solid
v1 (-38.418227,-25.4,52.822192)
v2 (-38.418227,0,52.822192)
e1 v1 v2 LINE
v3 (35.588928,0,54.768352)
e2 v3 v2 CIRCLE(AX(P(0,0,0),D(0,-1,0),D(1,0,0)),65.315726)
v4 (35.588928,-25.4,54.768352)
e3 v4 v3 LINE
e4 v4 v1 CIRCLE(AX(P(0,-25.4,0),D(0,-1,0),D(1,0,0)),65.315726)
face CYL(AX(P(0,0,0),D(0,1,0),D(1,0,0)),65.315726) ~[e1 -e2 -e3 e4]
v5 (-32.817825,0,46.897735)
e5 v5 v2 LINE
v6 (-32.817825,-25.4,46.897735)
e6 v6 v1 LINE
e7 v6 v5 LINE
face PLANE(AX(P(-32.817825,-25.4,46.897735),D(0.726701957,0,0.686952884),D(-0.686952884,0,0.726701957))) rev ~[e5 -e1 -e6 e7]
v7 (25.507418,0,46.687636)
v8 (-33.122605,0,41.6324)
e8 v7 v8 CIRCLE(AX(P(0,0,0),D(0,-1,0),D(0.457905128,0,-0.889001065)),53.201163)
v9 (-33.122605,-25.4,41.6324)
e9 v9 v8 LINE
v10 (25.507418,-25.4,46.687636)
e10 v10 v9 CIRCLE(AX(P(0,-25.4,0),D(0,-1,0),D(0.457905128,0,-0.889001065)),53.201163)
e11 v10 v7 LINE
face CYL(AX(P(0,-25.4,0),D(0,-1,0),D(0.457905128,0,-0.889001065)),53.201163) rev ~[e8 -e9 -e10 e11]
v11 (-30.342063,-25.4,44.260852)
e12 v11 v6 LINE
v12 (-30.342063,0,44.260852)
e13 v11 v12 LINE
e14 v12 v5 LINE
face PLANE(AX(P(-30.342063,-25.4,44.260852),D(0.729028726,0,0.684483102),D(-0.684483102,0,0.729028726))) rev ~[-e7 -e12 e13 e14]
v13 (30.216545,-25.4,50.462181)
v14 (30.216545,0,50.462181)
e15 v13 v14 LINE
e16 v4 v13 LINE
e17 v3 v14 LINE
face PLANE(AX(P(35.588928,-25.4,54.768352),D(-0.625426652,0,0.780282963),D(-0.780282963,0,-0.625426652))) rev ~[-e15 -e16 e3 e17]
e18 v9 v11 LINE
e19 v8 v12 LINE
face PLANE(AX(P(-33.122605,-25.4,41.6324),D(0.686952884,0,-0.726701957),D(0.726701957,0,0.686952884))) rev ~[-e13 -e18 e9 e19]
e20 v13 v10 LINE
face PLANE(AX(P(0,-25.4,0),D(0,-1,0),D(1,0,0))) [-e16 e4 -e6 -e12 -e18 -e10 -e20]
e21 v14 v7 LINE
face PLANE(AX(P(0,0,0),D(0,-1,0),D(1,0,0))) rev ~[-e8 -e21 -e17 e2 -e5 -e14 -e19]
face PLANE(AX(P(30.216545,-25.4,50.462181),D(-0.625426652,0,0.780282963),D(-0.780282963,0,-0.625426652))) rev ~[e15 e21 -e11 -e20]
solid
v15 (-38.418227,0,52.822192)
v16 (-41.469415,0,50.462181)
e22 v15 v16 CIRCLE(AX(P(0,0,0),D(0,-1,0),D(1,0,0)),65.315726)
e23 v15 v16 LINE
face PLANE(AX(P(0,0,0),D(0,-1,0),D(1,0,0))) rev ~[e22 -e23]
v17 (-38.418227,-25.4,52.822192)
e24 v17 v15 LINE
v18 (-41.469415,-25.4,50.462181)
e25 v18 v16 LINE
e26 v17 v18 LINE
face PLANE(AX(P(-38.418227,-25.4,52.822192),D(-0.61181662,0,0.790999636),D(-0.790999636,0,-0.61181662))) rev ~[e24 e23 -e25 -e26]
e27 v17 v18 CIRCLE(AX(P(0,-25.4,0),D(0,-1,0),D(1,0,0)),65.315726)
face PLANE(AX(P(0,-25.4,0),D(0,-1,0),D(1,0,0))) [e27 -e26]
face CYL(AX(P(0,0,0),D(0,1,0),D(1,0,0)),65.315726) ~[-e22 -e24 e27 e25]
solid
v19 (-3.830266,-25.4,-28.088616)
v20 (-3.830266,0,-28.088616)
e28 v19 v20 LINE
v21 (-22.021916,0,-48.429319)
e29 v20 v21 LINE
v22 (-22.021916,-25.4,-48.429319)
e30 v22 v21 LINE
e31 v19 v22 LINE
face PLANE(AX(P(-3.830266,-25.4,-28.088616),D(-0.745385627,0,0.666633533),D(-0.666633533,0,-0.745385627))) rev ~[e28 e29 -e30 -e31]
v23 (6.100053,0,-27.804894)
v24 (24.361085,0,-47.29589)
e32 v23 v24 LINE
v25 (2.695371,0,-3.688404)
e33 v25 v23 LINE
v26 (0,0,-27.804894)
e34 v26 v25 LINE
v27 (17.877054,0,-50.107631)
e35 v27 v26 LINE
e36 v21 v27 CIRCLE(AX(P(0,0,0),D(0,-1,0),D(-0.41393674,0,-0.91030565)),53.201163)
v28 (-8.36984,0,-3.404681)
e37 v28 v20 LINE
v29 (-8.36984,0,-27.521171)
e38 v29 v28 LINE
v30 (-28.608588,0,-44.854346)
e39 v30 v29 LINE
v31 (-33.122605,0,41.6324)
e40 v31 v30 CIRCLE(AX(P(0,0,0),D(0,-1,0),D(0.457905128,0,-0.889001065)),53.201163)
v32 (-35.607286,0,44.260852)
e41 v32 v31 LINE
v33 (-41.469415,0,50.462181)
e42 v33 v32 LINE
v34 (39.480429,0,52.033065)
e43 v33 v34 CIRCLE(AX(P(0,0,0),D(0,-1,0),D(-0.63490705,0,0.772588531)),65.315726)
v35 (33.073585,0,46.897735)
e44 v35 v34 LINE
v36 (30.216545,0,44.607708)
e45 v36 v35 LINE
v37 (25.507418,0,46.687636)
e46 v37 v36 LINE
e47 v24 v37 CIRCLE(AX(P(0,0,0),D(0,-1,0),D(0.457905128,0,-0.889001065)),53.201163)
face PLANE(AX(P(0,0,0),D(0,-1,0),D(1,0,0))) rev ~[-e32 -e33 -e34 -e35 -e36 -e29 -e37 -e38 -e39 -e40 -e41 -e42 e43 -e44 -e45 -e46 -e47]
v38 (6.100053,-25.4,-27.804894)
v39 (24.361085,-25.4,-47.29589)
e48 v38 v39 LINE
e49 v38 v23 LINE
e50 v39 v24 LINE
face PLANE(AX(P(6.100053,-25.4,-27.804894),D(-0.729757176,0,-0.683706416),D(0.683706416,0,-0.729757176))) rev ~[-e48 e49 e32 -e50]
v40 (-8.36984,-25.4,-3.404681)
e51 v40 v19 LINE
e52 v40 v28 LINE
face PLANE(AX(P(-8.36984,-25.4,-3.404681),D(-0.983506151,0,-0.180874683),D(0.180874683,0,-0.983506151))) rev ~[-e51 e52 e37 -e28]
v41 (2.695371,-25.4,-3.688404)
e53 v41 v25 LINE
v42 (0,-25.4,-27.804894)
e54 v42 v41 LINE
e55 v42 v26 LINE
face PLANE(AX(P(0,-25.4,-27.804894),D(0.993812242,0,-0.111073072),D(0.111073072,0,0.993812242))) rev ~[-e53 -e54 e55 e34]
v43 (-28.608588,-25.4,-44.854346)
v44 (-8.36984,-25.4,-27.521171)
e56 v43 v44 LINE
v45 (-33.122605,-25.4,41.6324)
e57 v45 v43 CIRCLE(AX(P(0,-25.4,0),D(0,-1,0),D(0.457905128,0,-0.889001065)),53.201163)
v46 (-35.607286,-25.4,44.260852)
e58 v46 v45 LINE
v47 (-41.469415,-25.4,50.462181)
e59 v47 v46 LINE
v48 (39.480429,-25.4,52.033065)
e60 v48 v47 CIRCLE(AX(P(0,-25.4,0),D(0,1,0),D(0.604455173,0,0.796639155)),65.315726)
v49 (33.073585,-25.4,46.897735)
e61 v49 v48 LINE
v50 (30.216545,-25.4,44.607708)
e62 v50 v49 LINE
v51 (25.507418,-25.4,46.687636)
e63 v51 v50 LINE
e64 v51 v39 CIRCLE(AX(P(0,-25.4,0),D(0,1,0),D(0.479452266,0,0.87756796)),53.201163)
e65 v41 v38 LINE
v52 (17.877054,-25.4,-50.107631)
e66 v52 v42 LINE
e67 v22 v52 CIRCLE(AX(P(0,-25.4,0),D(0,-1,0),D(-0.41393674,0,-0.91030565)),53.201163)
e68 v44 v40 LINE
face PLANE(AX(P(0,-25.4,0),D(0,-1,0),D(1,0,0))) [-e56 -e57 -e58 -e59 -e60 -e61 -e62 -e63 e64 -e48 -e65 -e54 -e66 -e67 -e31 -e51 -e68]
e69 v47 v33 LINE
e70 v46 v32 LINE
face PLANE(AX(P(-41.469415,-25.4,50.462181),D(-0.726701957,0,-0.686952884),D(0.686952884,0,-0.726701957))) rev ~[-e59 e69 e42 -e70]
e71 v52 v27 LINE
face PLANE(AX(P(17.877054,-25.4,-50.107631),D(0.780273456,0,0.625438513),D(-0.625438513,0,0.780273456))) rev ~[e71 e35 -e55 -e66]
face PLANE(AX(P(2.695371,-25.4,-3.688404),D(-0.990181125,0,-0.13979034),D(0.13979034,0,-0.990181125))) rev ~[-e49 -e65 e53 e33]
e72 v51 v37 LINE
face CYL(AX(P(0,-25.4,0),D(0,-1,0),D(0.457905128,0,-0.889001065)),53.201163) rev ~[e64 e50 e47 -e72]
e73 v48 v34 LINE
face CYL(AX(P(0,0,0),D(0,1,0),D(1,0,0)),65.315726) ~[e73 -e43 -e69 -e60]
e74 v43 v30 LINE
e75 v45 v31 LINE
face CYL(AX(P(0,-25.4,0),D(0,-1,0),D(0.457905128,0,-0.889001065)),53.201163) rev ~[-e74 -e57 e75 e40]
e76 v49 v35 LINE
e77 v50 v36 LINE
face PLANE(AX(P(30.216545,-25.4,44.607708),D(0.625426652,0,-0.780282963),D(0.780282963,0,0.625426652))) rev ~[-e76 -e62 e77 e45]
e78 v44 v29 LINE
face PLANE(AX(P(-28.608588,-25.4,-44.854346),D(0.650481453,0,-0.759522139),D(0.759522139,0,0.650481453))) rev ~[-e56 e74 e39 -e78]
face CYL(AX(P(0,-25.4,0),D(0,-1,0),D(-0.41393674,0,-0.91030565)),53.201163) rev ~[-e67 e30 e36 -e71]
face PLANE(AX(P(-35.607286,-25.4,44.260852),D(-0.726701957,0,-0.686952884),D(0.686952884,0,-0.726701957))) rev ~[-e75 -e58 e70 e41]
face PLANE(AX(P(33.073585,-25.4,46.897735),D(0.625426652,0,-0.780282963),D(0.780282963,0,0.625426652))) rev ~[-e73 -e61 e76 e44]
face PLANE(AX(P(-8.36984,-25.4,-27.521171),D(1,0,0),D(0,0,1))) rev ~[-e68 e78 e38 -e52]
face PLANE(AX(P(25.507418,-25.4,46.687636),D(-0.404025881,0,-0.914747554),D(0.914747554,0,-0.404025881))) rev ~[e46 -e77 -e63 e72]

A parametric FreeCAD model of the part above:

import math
import FreeCAD as App
import Part
import Sketcher
Q = App.Units.Quantity

doc = App.newDocument("Part")
body = doc.addObject("PartDesign::Body", "Body")
body.AllowCompound = True

sketch1 = body.newObject("Sketcher::SketchObject", "Sketch")
sketch1.AttachmentSupport = (doc.getObject("XZ_Plane"), [""])
sketch1.MapMode = "FlatFace"
sketch1.addGeometry(Part.Circle(App.Vector(0, 0, 0), App.Vector(0, 0, 1), 65), False)
sketch1.addConstraint(Sketcher.Constraint("Coincident", 0, 3, -1, 1))
sketch1.addConstraint(Sketcher.Constraint("Diameter", 0, 130.631453))
pad1 = body.newObject("PartDesign::Pad", "Pad")
pad1.Profile = sketch1
pad1.Length = Q("1 in")

sketch2 = body.newObject("Sketcher::SketchObject", "Sketch001")
sketch2.AttachmentSupport = (doc.getObject("XZ_Plane"), [""])
sketch2.MapMode = "FlatFace"
sketch2.AttachmentOffset = App.Placement(App.Vector(0, 0, 1 * 25.4), App.Rotation())
sketch2.addGeometry(Part.LineSegment(App.Vector(-38.4, 52.8, 0), App.Vector(-41.5, 50.5, 0)), False)
sketch2.addGeometry(Part.LineSegment(App.Vector(-41.5, 50.5, 0), App.Vector(-35.6, 44.3, 0)), False)
sketch2.addGeometry(Part.LineSegment(App.Vector(-35.6, 44.3, 0), App.Vector(-32.8, 46.9, 0)), False)
sketch2.addGeometry(Part.LineSegment(App.Vector(-32.8, 46.9, 0), App.Vector(-38.4, 52.8, 0)), False)
sketch2.addGeometry(Part.ArcOfCircle(Part.Circle(App.Vector(0, 0, 0), App.Vector(0, 0, 1), 65.3), math.radians(52.81), math.radians(56.98)), False)
sketch2.addGeometry(Part.LineSegment(App.Vector(35.6, 54.8, 0), App.Vector(30.2, 50.5, 0)), False)
sketch2.addGeometry(Part.LineSegment(App.Vector(30.2, 50.5, 0), App.Vector(33.1, 46.9, 0)), False)
sketch2.addGeometry(Part.LineSegment(App.Vector(33.1, 46.9, 0), App.Vector(39.5, 52, 0)), False)
sketch2.addConstraint(Sketcher.Constraint("Coincident", 0, 2, 1, 1))
sketch2.addConstraint(Sketcher.Constraint("Coincident", 1, 2, 2, 1))
sketch2.addConstraint(Sketcher.Constraint("Coincident", 2, 2, 3, 1))
sketch2.addConstraint(Sketcher.Constraint("Coincident", 3, 2, 0, 1))
sketch2.addConstraint(Sketcher.Constraint("Coincident", 4, 2, 5, 1))
sketch2.addConstraint(Sketcher.Constraint("Coincident", 5, 2, 6, 1))
sketch2.addConstraint(Sketcher.Constraint("Coincident", 6, 2, 7, 1))
sketch2.addConstraint(Sketcher.Constraint("Coincident", 7, 2, 4, 1))
sketch2.addConstraint(Sketcher.Constraint("Coincident", 4, 3, -1, 1))
sketch2.addConstraint(Sketcher.Constraint("Perpendicular", 1, 2))
sketch2.addConstraint(Sketcher.Constraint("Perpendicular", 2, 3))
sketch2.addConstraint(Sketcher.Constraint("Perpendicular", 5, 6))
sketch2.addConstraint(Sketcher.Constraint("Perpendicular", 6, 7))
sketch2.addConstraint(Sketcher.Constraint("Horizontal", 0, 2, 5, 2))
sketch2.addConstraint(Sketcher.Constraint("Horizontal", 2, 2, 6, 2))
sketch2.addConstraint(Sketcher.Constraint("DistanceY", -1, 1, 0, 2, Q("1.9867 in")))
sketch2.addConstraint(Sketcher.Constraint("Radius", 4, 65.315726))
sketch2.addConstraint(Sketcher.Constraint("DistanceX", 3, 2, 2, 2, 5.600402))
sketch2.addConstraint(Sketcher.Constraint("DistanceY", 1, 2, 4, 2, 10.5075))
sketch2.addConstraint(Sketcher.Constraint("DistanceX", 4, 2, 7, 2, 3.891501))
sketch2.addConstraint(Sketcher.Constraint("Distance", 2, 3.83852))
sketch2.addConstraint(Sketcher.Constraint("DistanceY", -1, 1, 3, 2, 52.822192))
sketch2.addConstraint(Sketcher.Constraint("DistanceY", -1, 1, 4, 2, 54.768352))
sketch2.addConstraint(Sketcher.Constraint("DistanceX", 2, 2, 5, 2, 63.03437))
pocket1 = body.newObject("PartDesign::Pocket", "Pocket")
pocket1.Profile = sketch2
pocket1.Length = Q("1 in")

sketch3 = body.newObject("Sketcher::SketchObject", "Sketch002")
sketch3.AttachmentSupport = (doc.getObject("XZ_Plane"), [""])
sketch3.MapMode = "FlatFace"
sketch3.AttachmentOffset = App.Placement(App.Vector(0, 0, 1 * 25.4), App.Rotation())
sketch3.addGeometry(Part.ArcOfCircle(Part.Circle(App.Vector(0, 0, 0), App.Vector(0, 0, 1), 53), math.radians(-63), math.radians(237)), False)
sketch3.addGeometry(Part.LineSegment(App.Vector(-29, -45, 0), App.Vector(-8, -28, 0)), False)
sketch3.addGeometry(Part.LineSegment(App.Vector(-8, -28, 0), App.Vector(-8, -3, 0)), False)
sketch3.addGeometry(Part.LineSegment(App.Vector(-8, -3, 0), App.Vector(-4, -28, 0)), False)
sketch3.addGeometry(Part.LineSegment(App.Vector(-4, -28, 0), App.Vector(-22, -48, 0)), False)
sketch3.addGeometry(Part.ArcOfCircle(Part.Circle(App.Vector(0, 0, 0), App.Vector(0, 0, 1), 53), math.radians(-114), math.radians(-70)), False)
sketch3.addGeometry(Part.LineSegment(App.Vector(18, -50, 0), App.Vector(0, -28, 0)), False)
sketch3.addGeometry(Part.LineSegment(App.Vector(0, -28, 0), App.Vector(3, -4, 0)), False)
sketch3.addGeometry(Part.LineSegment(App.Vector(3, -4, 0), App.Vector(6, -28, 0)), False)
sketch3.addGeometry(Part.LineSegment(App.Vector(6, -28, 0), App.Vector(24, -47, 0)), False)
sketch3.addConstraint(Sketcher.Constraint("Coincident", 0, 2, 1, 1))
sketch3.addConstraint(Sketcher.Constraint("Coincident", 1, 2, 2, 1))
sketch3.addConstraint(Sketcher.Constraint("Coincident", 2, 2, 3, 1))
sketch3.addConstraint(Sketcher.Constraint("Coincident", 3, 2, 4, 1))
sketch3.addConstraint(Sketcher.Constraint("Coincident", 4, 2, 5, 1))
sketch3.addConstraint(Sketcher.Constraint("Coincident", 5, 2, 6, 1))
sketch3.addConstraint(Sketcher.Constraint("Coincident", 6, 2, 7, 1))
sketch3.addConstraint(Sketcher.Constraint("Coincident", 7, 2, 8, 1))
sketch3.addConstraint(Sketcher.Constraint("Coincident", 8, 2, 9, 1))
sketch3.addConstraint(Sketcher.Constraint("Coincident", 9, 2, 0, 1))
sketch3.addConstraint(Sketcher.Constraint("Vertical", 2))
sketch3.addConstraint(Sketcher.Constraint("Coincident", 0, 3, -1, 1))
sketch3.addConstraint(Sketcher.Constraint("Coincident", 5, 3, -1, 1))
sketch3.addConstraint(Sketcher.Constraint("Equal", 0, 5))
sketch3.addConstraint(Sketcher.Constraint("PointOnObject", 6, 2, -2))
sketch3.addConstraint(Sketcher.Constraint("Horizontal", 6, 2, 8, 2))
sketch3.addConstraint(Sketcher.Constraint("Radius", 0, 53.201163))
sketch3.addConstraint(Sketcher.Constraint("DistanceY", 2, 1, 2, 2, 24.11649))
sketch3.addConstraint(Sketcher.Constraint("DistanceX", 8, 2, 5, 2, 11.777))
sketch3.addConstraint(Sketcher.Constraint("Distance", 4, 27.288831))
sketch3.addConstraint(Sketcher.Constraint("Distance", 6, 28.583231))
sketch3.addConstraint(Sketcher.Constraint("Distance", 9, 26.708879))
sketch3.addConstraint(Sketcher.Constraint("DistanceX", 0, 2, -1, 1, 28.608588))
sketch3.addConstraint(Sketcher.Constraint("DistanceX", 1, 2, -1, 1, 8.36984))
sketch3.addConstraint(Sketcher.Constraint("DistanceY", 1, 2, -1, 1, 27.521171))
sketch3.addConstraint(Sketcher.Constraint("DistanceY", 4, 2, -1, 1, 48.429319))
sketch3.addConstraint(Sketcher.Constraint("DistanceY", 5, 2, -1, 1, 50.107631))
sketch3.addConstraint(Sketcher.Constraint("DistanceX", -1, 1, 7, 2, 2.695371))
sketch3.addConstraint(Sketcher.Constraint("DistanceY", 0, 2, 3, 2, 16.76573))
sketch3.addConstraint(Sketcher.Constraint("DistanceY", 6, 2, 7, 2, 24.11649))
pocket2 = body.newObject("PartDesign::Pocket", "Pocket001")
pocket2.Profile = sketch3
pocket2.Length = Q("1 in")

sketch4 = body.newObject("Sketcher::SketchObject", "Sketch003")
sketch4.AttachmentSupport = (doc.getObject("XZ_Plane"), [""])
sketch4.MapMode = "FlatFace"
sketch4.AttachmentOffset = App.Placement(App.Vector(0, 0, 1 * 25.4), App.Rotation())
sketch4.addGeometry(Part.LineSegment(App.Vector(-32.8, 46.9, 0), App.Vector(-35.6, 44.3, 0)), False)
sketch4.addGeometry(Part.LineSegment(App.Vector(-35.6, 44.3, 0), App.Vector(-33.1, 41.6, 0)), False)
sketch4.addGeometry(Part.LineSegment(App.Vector(-33.1, 41.6, 0), App.Vector(-30.3, 44.3, 0)), False)
sketch4.addGeometry(Part.LineSegment(App.Vector(-30.3, 44.3, 0), App.Vector(-32.8, 46.9, 0)), False)
sketch4.addGeometry(Part.LineSegment(App.Vector(30.2, 50.5, 0), App.Vector(25.5, 46.7, 0)), False)
sketch4.addGeometry(Part.LineSegment(App.Vector(25.5, 46.7, 0), App.Vector(30.2, 44.6, 0)), False)
sketch4.addGeometry(Part.LineSegment(App.Vector(30.2, 44.6, 0), App.Vector(33.1, 46.9, 0)), False)
sketch4.addGeometry(Part.LineSegment(App.Vector(33.1, 46.9, 0), App.Vector(30.2, 50.5, 0)), False)
sketch4.addConstraint(Sketcher.Constraint("Coincident", 0, 2, 1, 1))
sketch4.addConstraint(Sketcher.Constraint("Coincident", 1, 2, 2, 1))
sketch4.addConstraint(Sketcher.Constraint("Coincident", 2, 2, 3, 1))
sketch4.addConstraint(Sketcher.Constraint("Coincident", 3, 2, 0, 1))
sketch4.addConstraint(Sketcher.Constraint("Coincident", 4, 2, 5, 1))
sketch4.addConstraint(Sketcher.Constraint("Coincident", 5, 2, 6, 1))
sketch4.addConstraint(Sketcher.Constraint("Coincident", 6, 2, 7, 1))
sketch4.addConstraint(Sketcher.Constraint("Coincident", 7, 2, 4, 1))
sketch4.addConstraint(Sketcher.Constraint("Perpendicular", 0, 1))
sketch4.addConstraint(Sketcher.Constraint("Perpendicular", 1, 2))
sketch4.addConstraint(Sketcher.Constraint("Parallel", 4, 6))
sketch4.addConstraint(Sketcher.Constraint("Perpendicular", 6, 7))
sketch4.addConstraint(Sketcher.Constraint("Horizontal", 0, 2, 2, 2))
sketch4.addConstraint(Sketcher.Constraint("Horizontal", 3, 2, 6, 2))
sketch4.addConstraint(Sketcher.Constraint("Vertical", 5, 2, 7, 2))
sketch4.addConstraint(Sketcher.Constraint("Distance", 1, Q("0.1424 in")))
sketch4.addConstraint(Sketcher.Constraint("DistanceY", -1, 1, 7, 2, Q("1.9867 in")))
sketch4.addConstraint(Sketcher.Constraint("DistanceY", -1, 1, 1, 2, 41.6324))
sketch4.addConstraint(Sketcher.Constraint("DistanceY", 4, 2, 3, 2, 0.210099))
sketch4.addConstraint(Sketcher.Constraint("Distance", 0, 3.83852))
sketch4.addConstraint(Sketcher.Constraint("DistanceX", -1, 1, 4, 2, 25.507418))
sketch4.addConstraint(Sketcher.Constraint("DistanceX", 0, 2, 1, 2, 2.484681))
sketch4.addConstraint(Sketcher.Constraint("DistanceX", 2, 2, 4, 2, 55.849481))
sketch4.addConstraint(Sketcher.Constraint("DistanceY", 5, 2, 4, 2, 2.079928))
pocket3 = body.newObject("PartDesign::Pocket", "Pocket002")
pocket3.Profile = sketch4
pocket3.Length = Q("1 in")

sketch5 = body.newObject("Sketcher::SketchObject", "Sketch004")
sketch5.AttachmentSupport = (doc.getObject("XZ_Plane"), [""])
sketch5.MapMode = "FlatFace"
sketch5.AttachmentOffset = App.Placement(App.Vector(0, 0, 1 * 25.4), App.Rotation())
sketch5.addGeometry(Part.LineSegment(App.Vector(28.8, 41.4, 0), App.Vector(29.9, 44, 0)), False)
sketch5.addGeometry(Part.ArcOfCircle(Part.Circle(App.Vector(0, 0, 0), App.Vector(0, 0, 1), 53.2), math.radians(55.75), math.radians(61.35)), False)
sketch5.addGeometry(Part.LineSegment(App.Vector(25.5, 46.7, 0), App.Vector(28.8, 41.4, 0)), False)
sketch5.addConstraint(Sketcher.Constraint("Coincident", 0, 2, 1, 1))
sketch5.addConstraint(Sketcher.Constraint("Coincident", 1, 2, 2, 1))
sketch5.addConstraint(Sketcher.Constraint("Coincident", 2, 2, 0, 1))
sketch5.addConstraint(Sketcher.Constraint("Coincident", 1, 3, -1, 1))
sketch5.addConstraint(Sketcher.Constraint("Radius", 1, 53.201163))
sketch5.addConstraint(Sketcher.Constraint("Distance", 0, 2.82113))
sketch5.addConstraint(Sketcher.Constraint("Distance", 2, 6.23052))
sketch5.addConstraint(Sketcher.Constraint("DistanceX", -1, 1, 0, 2, 29.938379))
sketch5.addConstraint(Sketcher.Constraint("DistanceX", -1, 1, 1, 2, 25.507418))
pocket4 = body.newObject("PartDesign::Pocket", "Pocket003")
pocket4.Profile = sketch5
pocket4.Length = Q("1 in")

doc.recompute()
